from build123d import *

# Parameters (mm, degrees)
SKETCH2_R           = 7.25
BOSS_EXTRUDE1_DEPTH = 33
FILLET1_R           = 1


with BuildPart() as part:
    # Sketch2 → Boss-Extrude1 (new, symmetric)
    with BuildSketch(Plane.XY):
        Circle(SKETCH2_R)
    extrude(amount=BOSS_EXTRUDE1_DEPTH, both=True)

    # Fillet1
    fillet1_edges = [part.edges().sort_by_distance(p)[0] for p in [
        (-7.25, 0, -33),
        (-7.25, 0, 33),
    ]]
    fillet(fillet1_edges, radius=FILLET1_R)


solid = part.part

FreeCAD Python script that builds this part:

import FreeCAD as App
import Part
import Sketcher
from FreeCAD import Vector
Q = App.Units.Quantity


def edges_at(feature, points):
    """Names of the edges that pass closest to the given points."""
    edges = feature.Shape.Edges
    near = lambda p: min(range(len(edges)), key=lambda i: edges[i].distToShape(Part.Vertex(*p))[0])
    return sorted({f"Edge{near(p) + 1}" for p in points})

doc = App.newDocument("Part")
body = doc.addObject("PartDesign::Body", "Body")

# Sketch on XY plane
sketch1 = body.newObject("Sketcher::SketchObject", "Sketch")
sketch1.AttachmentSupport = (doc.getObject("XY_Plane"), [""])
sketch1.MapMode = "FlatFace"
sketch1.addGeometry(Part.Circle(Vector(0, 0, 0), Vector(0, 0, 1), 7), False)
sketch1.addConstraint([
    Sketcher.Constraint("Coincident", 0, 3, -1, 1),
    Sketcher.Constraint("Diameter", 0, Q("14.5 mm")),
])
pad1 = body.newObject("PartDesign::Pad", "Pad")
pad1.Profile = sketch1
pad1.Length = 66
pad1.Midplane = True
doc.recompute()

fillet = body.newObject("PartDesign::Fillet", "Fillet")
fillet.Base = (pad1, edges_at(pad1, [(-7.25, 0, -33), (-7.25, 0, 33)]))
fillet.Radius = 1

doc.recompute()
